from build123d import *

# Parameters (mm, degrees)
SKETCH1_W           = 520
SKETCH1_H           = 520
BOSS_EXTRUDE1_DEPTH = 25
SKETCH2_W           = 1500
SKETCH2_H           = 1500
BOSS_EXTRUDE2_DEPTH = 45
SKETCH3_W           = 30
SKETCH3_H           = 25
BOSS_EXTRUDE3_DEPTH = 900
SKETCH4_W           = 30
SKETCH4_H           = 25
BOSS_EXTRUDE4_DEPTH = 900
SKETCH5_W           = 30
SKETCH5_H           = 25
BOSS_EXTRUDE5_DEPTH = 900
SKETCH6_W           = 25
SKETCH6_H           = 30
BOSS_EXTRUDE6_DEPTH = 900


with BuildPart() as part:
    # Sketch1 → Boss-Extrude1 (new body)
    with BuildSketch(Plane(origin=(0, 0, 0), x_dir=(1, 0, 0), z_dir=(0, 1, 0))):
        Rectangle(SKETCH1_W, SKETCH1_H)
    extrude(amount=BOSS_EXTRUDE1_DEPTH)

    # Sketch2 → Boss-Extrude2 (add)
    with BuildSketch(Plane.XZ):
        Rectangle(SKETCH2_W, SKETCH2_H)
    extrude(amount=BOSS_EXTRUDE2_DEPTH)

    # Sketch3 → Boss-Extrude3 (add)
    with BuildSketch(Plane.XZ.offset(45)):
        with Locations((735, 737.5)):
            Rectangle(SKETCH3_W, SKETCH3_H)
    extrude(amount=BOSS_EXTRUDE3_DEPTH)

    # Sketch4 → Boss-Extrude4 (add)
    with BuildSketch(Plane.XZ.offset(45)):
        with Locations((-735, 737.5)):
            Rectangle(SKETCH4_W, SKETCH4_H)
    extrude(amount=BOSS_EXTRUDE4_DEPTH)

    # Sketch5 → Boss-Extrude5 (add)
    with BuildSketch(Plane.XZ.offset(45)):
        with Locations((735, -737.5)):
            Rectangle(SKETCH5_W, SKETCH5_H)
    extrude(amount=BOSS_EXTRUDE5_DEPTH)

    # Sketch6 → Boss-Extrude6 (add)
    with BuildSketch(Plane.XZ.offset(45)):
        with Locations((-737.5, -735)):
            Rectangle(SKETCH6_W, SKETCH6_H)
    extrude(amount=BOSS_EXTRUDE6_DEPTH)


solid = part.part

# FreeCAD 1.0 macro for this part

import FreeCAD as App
import Part
import Sketcher

V = App.Vector
Q = App.Units.Quantity


def add_polygon(sketch, points):
    """Adds a closed chain of lines whose ends are joined by coincident constraints."""
    first, n = sketch.GeometryCount, len(points)
    for a, b in zip(points, points[1:] + points[:1]):
        sketch.addGeometry(Part.LineSegment(App.Vector(*a, 0), App.Vector(*b, 0)), False)
    for i in range(n):
        sketch.addConstraint(Sketcher.Constraint("Coincident", first + i, 2, first + (i + 1) % n, 1))

doc = App.newDocument("Part")
body = doc.addObject("PartDesign::Body", "Body")

# Sketch on XZ plane
sketch1 = body.newObject("Sketcher::SketchObject", "Sketch")
sketch1.AttachmentSupport = (doc.getObject("XZ_Plane"), [""])
sketch1.MapMode = "FlatFace"
add_polygon(sketch1, [(-260, -260), (-260, 260), (260, 260), (260, -260)])  # lines 0-3
sketch1.addConstraint([
    Sketcher.Constraint("Vertical", 0),
    Sketcher.Constraint("Horizontal", 1),
    Sketcher.Constraint("Vertical", 2),
    Sketcher.Constraint("Horizontal", 3),
    Sketcher.Constraint("Symmetric", 0, 2, 2, 2, -1, 1),
    Sketcher.Constraint("Equal", 3, 0),
    Sketcher.Constraint("DistanceX", 1, 1, 1, 2, Q("520 mm")),
])
pad1 = body.newObject("PartDesign::Pad", "Pad")
pad1.Profile = sketch1
pad1.Length = 25
pad1.Reversed = True

# Sketch on XZ plane
sketch2 = body.newObject("Sketcher::SketchObject", "Sketch001")
sketch2.AttachmentSupport = (doc.getObject("XZ_Plane"), [""])
sketch2.MapMode = "FlatFace"
add_polygon(sketch2, [(-750, 750), (-750, -750), (750, -750), (750, 750)])  # lines 0-3
sketch2.addConstraint([
    Sketcher.Constraint("Vertical", 0),
    Sketcher.Constraint("Horizontal", 1),
    Sketcher.Constraint("Vertical", 2),
    Sketcher.Constraint("Horizontal", 3),
    Sketcher.Constraint("Symmetric", 0, 2, 2, 2, -1, 1),
    Sketcher.Constraint("Equal", 3, 0),
    Sketcher.Constraint("DistanceX", 1, 1, 1, 2, Q("1500 mm")),
])
pad2 = body.newObject("PartDesign::Pad", "Pad001")
pad2.Profile = sketch2
pad2.Length = 45

# Sketch on XZ plane
sketch3 = body.newObject("Sketcher::SketchObject", "Sketch002")
sketch3.AttachmentSupport = (doc.getObject("XZ_Plane"), [""])
sketch3.MapMode = "FlatFace"
sketch3.AttachmentOffset = App.Placement(V(0, 0, 45), App.Rotation())
add_polygon(sketch3, [(720, 750), (720, 725), (750, 725), (750, 750)])  # lines 0-3
sketch3.addConstraint([
    Sketcher.Constraint("Vertical", 0),
    Sketcher.Constraint("Horizontal", 1),
    Sketcher.Constraint("Vertical", 2),
    Sketcher.Constraint("Horizontal", 3),
    Sketcher.Constraint("DistanceX", 1, 1, 1, 2, Q("30 mm")),
    Sketcher.Constraint("DistanceY", 0, 2, 0, 1, Q("25 mm")),
    Sketcher.Constraint("DistanceX", -1, 1, 0, 2, Q("720 mm")),
    Sketcher.Constraint("DistanceY", -1, 1, 0, 2, Q("725 mm")),
])
pad3 = body.newObject("PartDesign::Pad", "Pad002")
pad3.Profile = sketch3
pad3.Length = 900

# Sketch on XZ plane
sketch4 = body.newObject("Sketcher::SketchObject", "Sketch003")
sketch4.AttachmentSupport = (doc.getObject("XZ_Plane"), [""])
sketch4.MapMode = "FlatFace"
sketch4.AttachmentOffset = App.Placement(V(0, 0, 45), App.Rotation())
add_polygon(sketch4, [(-750, 750), (-750, 725), (-720, 725), (-720, 750)])  # lines 0-3
sketch4.addConstraint([
    Sketcher.Constraint("Vertical", 0),
    Sketcher.Constraint("Horizontal", 1),
    Sketcher.Constraint("Vertical", 2),
    Sketcher.Constraint("Horizontal", 3),
    Sketcher.Constraint("DistanceX", 1, 1, 1, 2, Q("30 mm")),
    Sketcher.Constraint("DistanceY", 0, 2, 0, 1, Q("25 mm")),
    Sketcher.Constraint("DistanceX", 0, 2, -1, 1, Q("750 mm")),
    Sketcher.Constraint("DistanceY", -1, 1, 0, 2, Q("725 mm")),
])
pad4 = body.newObject("PartDesign::Pad", "Pad003")
pad4.Profile = sketch4
pad4.Length = 900

# Sketch on XZ plane
sketch5 = body.newObject("Sketcher::SketchObject", "Sketch004")
sketch5.AttachmentSupport = (doc.getObject("XZ_Plane"), [""])
sketch5.MapMode = "FlatFace"
sketch5.AttachmentOffset = App.Placement(V(0, 0, 45), App.Rotation())
add_polygon(sketch5, [(720, -725), (720, -750), (750, -750), (750, -725)])  # lines 0-3
sketch5.addConstraint([
    Sketcher.Constraint("Vertical", 0),
    Sketcher.Constraint("Horizontal", 1),
    Sketcher.Constraint("Vertical", 2),
    Sketcher.Constraint("Horizontal", 3),
    Sketcher.Constraint("DistanceX", 1, 1, 1, 2, Q("30 mm")),
    Sketcher.Constraint("DistanceY", 0, 2, 0, 1, Q("25 mm")),
    Sketcher.Constraint("DistanceX", -1, 1, 0, 2, Q("720 mm")),
    Sketcher.Constraint("DistanceY", 0, 2, -1, 1, Q("750 mm")),
])
pad5 = body.newObject("PartDesign::Pad", "Pad004")
pad5.Profile = sketch5
pad5.Length = 900

# Sketch on XZ plane
sketch6 = body.newObject("Sketcher::SketchObject", "Sketch005")
sketch6.AttachmentSupport = (doc.getObject("XZ_Plane"), [""])
sketch6.MapMode = "FlatFace"
sketch6.AttachmentOffset = App.Placement(V(0, 0, 45), App.Rotation())
add_polygon(sketch6, [(-750, -720), (-750, -750), (-725, -750), (-725, -720)])  # lines 0-3
sketch6.addConstraint([
    Sketcher.Constraint("Vertical", 0),
    Sketcher.Constraint("Horizontal", 1),
    Sketcher.Constraint("Vertical", 2),
    Sketcher.Constraint("Horizontal", 3),
    Sketcher.Constraint("DistanceX", 1, 1, 1, 2, Q("25 mm")),
    Sketcher.Constraint("DistanceY", 0, 2, 0, 1, Q("30 mm")),
    Sketcher.Constraint("DistanceX", 0, 2, -1, 1, Q("750 mm")),
    Sketcher.Constraint("DistanceY", 0, 2, -1, 1, Q("750 mm")),
])
pad6 = body.newObject("PartDesign::Pad", "Pad005")
pad6.Profile = sketch6
pad6.Length = 900

doc.recompute()
